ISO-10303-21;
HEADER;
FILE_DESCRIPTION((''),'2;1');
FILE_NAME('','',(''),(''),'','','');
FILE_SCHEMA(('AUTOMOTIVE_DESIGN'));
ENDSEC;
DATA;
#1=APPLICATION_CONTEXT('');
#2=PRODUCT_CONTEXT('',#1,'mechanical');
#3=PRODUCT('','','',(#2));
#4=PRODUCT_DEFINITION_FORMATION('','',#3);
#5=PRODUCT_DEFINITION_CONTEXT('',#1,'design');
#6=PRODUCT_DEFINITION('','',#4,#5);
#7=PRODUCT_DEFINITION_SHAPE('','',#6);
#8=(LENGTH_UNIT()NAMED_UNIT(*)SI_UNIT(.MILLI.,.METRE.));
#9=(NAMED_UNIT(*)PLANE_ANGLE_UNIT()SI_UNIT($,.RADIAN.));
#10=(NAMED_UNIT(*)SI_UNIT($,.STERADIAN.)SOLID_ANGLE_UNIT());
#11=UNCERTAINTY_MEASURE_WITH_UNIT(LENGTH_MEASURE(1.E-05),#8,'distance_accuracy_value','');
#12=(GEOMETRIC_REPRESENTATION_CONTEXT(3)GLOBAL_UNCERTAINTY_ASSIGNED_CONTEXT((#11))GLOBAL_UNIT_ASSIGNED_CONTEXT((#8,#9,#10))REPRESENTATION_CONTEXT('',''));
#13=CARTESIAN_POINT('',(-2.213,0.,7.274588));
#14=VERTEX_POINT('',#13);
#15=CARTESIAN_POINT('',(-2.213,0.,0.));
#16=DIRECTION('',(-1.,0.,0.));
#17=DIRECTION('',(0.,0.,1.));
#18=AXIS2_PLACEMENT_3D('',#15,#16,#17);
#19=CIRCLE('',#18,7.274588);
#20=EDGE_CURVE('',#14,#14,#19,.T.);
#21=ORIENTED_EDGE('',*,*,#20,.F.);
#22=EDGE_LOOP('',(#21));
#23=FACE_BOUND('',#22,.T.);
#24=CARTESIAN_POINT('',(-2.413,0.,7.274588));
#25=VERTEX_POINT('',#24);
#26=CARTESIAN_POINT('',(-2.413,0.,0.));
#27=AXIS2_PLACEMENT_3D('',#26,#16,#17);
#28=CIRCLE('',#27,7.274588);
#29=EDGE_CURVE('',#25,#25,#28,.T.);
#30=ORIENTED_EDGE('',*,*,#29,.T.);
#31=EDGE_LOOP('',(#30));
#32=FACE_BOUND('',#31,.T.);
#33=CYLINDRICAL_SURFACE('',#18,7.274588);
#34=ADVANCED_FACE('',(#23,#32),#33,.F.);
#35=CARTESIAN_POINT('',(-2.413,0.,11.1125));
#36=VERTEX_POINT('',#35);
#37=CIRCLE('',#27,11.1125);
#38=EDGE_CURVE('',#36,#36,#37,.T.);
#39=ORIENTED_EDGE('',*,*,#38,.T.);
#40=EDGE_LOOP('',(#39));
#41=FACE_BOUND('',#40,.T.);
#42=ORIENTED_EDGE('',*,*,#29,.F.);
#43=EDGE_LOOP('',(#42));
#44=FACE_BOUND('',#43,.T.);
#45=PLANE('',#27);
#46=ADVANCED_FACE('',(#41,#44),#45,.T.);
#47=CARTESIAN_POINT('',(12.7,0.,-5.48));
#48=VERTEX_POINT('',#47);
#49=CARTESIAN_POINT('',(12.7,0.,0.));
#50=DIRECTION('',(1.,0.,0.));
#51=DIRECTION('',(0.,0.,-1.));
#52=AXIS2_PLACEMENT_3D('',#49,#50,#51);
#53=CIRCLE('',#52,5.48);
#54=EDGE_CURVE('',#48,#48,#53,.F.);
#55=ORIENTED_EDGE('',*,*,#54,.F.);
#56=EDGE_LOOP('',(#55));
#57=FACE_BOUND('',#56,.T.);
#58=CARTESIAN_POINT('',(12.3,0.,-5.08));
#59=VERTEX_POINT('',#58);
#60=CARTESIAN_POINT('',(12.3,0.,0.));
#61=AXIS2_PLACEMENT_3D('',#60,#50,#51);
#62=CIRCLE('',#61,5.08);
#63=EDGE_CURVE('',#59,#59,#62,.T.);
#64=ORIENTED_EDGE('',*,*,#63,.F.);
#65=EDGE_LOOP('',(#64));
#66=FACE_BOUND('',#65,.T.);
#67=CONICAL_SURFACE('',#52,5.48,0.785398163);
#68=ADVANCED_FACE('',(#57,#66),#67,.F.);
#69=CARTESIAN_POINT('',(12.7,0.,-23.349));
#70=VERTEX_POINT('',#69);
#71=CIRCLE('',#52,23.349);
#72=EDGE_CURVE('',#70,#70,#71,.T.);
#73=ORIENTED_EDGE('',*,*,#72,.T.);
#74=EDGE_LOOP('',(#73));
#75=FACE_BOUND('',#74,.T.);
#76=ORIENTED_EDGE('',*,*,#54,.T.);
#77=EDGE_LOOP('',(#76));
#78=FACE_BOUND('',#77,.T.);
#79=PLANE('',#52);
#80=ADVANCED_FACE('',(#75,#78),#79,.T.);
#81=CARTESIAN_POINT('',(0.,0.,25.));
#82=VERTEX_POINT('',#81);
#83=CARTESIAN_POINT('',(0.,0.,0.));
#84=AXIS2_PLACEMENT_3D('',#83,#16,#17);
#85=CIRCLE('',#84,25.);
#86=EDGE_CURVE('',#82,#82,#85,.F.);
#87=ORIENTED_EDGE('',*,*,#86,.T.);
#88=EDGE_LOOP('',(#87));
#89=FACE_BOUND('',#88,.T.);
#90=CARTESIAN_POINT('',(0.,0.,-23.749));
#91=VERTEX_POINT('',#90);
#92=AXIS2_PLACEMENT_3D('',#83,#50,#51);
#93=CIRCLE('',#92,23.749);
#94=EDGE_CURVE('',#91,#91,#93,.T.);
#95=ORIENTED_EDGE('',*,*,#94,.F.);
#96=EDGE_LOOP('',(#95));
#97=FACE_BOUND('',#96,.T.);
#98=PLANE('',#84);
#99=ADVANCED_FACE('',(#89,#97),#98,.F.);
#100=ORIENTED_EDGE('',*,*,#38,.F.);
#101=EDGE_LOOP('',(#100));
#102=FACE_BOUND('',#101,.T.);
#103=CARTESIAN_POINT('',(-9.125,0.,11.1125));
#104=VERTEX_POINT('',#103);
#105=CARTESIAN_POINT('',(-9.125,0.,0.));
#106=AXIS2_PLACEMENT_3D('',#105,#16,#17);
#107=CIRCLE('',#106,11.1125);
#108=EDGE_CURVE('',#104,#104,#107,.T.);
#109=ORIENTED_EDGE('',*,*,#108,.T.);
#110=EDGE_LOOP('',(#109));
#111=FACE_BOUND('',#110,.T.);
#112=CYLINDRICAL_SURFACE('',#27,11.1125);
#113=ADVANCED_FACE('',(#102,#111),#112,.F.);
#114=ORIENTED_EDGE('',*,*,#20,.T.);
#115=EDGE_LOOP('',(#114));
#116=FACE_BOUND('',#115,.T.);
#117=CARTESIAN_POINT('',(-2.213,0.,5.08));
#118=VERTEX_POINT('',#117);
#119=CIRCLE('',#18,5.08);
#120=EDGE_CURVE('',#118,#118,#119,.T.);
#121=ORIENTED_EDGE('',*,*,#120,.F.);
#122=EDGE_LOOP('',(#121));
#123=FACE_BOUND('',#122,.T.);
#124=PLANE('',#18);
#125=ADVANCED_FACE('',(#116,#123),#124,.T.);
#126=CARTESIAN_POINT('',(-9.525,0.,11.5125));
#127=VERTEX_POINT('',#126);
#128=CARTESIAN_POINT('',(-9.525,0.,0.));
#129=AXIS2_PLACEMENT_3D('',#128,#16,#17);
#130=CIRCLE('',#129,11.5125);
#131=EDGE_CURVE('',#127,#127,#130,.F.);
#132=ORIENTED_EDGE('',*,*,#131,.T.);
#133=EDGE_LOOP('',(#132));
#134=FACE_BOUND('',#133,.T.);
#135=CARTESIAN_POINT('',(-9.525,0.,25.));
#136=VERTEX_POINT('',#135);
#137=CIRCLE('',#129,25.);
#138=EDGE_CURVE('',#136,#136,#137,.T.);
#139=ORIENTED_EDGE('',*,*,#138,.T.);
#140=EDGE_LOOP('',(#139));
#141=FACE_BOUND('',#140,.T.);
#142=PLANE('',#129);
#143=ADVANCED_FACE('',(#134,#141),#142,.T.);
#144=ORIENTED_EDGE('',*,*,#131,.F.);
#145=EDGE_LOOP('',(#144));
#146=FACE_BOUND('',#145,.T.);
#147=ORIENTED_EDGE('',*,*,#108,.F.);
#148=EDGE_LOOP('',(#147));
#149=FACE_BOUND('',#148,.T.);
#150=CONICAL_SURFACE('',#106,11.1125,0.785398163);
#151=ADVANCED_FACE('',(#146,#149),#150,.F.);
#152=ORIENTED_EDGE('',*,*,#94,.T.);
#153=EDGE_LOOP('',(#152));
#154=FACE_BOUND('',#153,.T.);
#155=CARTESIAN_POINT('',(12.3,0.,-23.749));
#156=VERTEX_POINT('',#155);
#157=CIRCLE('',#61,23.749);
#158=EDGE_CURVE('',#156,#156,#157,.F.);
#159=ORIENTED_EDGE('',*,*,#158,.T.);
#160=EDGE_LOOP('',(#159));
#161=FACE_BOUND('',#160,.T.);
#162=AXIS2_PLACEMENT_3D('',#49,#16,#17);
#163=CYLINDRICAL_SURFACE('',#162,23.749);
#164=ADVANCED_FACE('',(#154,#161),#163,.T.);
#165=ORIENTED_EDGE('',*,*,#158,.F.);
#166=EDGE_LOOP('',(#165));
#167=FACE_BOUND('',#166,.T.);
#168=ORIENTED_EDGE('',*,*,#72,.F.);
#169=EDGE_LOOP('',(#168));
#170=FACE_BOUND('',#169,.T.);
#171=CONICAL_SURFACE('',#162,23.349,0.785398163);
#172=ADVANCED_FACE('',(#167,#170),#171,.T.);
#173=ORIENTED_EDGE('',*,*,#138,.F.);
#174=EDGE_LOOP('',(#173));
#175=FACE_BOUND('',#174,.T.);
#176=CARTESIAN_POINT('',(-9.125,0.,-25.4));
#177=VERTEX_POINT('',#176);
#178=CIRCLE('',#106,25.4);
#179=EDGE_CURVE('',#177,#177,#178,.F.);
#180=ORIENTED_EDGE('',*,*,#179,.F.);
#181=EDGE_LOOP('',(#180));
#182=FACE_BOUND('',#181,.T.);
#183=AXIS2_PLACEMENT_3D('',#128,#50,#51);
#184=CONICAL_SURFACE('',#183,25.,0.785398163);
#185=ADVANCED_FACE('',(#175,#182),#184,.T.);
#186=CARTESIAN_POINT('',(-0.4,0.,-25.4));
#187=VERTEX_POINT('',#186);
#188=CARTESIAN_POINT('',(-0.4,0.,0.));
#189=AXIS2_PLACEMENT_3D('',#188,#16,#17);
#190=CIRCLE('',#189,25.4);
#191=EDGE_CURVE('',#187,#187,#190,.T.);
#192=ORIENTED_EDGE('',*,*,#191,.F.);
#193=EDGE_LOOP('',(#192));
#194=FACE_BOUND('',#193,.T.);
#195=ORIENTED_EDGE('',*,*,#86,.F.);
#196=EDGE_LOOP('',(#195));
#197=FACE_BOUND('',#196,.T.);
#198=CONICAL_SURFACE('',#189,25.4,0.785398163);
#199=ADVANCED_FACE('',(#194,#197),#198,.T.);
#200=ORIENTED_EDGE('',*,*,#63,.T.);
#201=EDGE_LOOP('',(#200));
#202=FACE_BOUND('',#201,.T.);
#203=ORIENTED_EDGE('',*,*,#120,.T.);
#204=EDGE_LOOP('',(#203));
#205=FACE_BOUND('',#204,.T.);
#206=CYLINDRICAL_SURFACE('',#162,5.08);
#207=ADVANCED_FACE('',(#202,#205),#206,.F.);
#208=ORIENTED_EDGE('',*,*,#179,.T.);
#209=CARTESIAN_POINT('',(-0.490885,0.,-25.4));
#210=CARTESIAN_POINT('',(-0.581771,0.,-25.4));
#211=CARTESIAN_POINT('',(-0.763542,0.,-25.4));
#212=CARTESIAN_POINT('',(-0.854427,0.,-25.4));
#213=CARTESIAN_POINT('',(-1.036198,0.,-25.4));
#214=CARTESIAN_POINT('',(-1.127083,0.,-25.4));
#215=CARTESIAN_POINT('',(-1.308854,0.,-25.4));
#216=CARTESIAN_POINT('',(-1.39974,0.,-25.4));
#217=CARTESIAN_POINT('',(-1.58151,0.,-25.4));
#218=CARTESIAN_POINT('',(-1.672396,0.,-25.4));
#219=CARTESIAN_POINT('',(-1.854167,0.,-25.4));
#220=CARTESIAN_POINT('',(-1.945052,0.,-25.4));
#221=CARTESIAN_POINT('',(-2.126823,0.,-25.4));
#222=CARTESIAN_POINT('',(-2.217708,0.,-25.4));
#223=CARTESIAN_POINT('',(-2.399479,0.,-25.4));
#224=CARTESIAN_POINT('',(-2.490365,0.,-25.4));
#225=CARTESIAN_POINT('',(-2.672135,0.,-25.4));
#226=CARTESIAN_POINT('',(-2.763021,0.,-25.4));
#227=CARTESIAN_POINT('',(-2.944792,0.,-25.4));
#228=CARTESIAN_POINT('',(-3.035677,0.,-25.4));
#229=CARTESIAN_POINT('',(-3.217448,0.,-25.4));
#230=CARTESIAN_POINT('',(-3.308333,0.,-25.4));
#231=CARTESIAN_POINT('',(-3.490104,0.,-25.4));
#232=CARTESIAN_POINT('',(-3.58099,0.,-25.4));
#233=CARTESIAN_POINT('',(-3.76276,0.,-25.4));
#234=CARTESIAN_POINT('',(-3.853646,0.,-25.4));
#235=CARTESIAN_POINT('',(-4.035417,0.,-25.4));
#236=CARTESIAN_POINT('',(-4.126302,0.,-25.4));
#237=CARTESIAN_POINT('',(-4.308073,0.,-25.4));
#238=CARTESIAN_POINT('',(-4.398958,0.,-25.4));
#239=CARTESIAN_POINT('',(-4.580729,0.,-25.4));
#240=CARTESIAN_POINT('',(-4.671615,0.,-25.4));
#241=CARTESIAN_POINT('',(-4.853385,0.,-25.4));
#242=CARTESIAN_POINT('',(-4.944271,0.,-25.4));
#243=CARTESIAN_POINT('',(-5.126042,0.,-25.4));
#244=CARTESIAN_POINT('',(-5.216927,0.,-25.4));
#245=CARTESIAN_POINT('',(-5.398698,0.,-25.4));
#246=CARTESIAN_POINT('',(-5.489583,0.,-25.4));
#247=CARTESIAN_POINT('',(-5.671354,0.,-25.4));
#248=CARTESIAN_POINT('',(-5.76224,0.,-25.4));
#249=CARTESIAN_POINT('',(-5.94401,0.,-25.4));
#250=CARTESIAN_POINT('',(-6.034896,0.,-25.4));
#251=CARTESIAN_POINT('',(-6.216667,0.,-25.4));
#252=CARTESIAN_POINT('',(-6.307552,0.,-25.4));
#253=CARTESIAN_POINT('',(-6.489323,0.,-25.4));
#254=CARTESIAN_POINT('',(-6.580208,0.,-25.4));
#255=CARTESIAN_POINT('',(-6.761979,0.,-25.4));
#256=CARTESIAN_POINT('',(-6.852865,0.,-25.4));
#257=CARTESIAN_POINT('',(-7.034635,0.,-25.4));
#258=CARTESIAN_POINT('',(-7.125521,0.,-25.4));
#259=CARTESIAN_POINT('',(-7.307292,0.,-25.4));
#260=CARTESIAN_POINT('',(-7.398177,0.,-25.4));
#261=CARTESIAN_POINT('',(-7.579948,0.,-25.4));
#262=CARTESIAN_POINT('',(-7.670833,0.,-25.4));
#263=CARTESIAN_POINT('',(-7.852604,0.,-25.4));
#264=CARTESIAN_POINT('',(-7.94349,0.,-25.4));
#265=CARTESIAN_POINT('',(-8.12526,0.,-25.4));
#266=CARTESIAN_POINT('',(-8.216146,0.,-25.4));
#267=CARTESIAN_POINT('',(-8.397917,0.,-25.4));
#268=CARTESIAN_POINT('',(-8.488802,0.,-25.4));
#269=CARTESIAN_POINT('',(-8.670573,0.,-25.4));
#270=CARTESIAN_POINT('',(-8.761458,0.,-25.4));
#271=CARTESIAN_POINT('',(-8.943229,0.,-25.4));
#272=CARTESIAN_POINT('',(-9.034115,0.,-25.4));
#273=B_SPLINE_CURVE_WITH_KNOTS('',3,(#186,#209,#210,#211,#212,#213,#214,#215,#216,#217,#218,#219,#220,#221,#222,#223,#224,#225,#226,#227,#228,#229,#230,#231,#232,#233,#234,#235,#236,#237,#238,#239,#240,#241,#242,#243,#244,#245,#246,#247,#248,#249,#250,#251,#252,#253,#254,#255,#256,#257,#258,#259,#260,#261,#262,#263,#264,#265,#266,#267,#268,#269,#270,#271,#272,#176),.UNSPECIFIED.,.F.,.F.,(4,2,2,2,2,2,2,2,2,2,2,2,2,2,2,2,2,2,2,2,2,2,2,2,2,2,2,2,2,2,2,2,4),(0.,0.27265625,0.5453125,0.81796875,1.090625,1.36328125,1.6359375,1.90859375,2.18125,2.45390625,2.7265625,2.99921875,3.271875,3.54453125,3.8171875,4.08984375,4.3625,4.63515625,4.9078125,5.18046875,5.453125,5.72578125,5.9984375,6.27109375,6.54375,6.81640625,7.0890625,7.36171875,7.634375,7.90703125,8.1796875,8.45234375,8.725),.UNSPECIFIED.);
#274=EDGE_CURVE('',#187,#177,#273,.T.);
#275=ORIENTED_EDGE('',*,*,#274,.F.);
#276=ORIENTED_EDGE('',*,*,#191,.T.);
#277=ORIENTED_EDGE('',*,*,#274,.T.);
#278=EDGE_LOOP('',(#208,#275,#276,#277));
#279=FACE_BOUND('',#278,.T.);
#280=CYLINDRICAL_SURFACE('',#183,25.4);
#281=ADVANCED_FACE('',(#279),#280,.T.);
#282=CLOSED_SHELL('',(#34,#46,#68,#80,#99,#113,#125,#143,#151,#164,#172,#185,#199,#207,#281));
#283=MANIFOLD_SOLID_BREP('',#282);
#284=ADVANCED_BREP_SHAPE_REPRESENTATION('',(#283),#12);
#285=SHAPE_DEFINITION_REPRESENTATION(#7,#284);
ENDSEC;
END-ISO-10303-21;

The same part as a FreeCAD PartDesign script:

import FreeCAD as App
import Part
import Sketcher

V = App.Vector
Q = App.Units.Quantity


def edges_at(feature, points):
    """Names of the edges that pass closest to the given points."""
    edges = feature.Shape.Edges
    near = lambda p: min(range(len(edges)), key=lambda i: edges[i].distToShape(Part.Vertex(*p))[0])
    return sorted({f"Edge{near(p) + 1}" for p in points})

doc = App.newDocument("Part")
body = doc.addObject("PartDesign::Body", "Body")

# Sketch on YZ plane
sketch1 = body.newObject("Sketcher::SketchObject", "Sketch")
sketch1.AttachmentSupport = (doc.getObject("YZ_Plane"), [""])
sketch1.MapMode = "FlatFace"
sketch1.addGeometry(Part.Circle(V(0, 0, 0), V(0, 0, 1), 24), False)
sketch1.addConstraint([
    Sketcher.Constraint("Coincident", 0, 3, -1, 1),
    Sketcher.Constraint("Diameter", 0, Q("1.87 in")),
])
pad1 = body.newObject("PartDesign::Pad", "Pad")
pad1.Profile = sketch1
pad1.Length = Q("0.5 in")

# Sketch on YZ plane
sketch2 = body.newObject("Sketcher::SketchObject", "Sketch001")
sketch2.AttachmentSupport = (doc.getObject("YZ_Plane"), [""])
sketch2.MapMode = "FlatFace"
sketch2.addGeometry(Part.Circle(V(0, 0, 0), V(0, 0, 1), 25), False)
sketch2.addConstraint([
    Sketcher.Constraint("Coincident", 0, 3, -1, 1),
    Sketcher.Constraint("Diameter", 0, Q("2 in")),
])
pad2 = body.newObject("PartDesign::Pad", "Pad001")
pad2.Profile = sketch2
pad2.Length = Q("0.375 in")
pad2.Reversed = True

# Sketch on YZ plane
sketch3 = body.newObject("Sketcher::SketchObject", "Sketch002")
sketch3.AttachmentSupport = (doc.getObject("YZ_Plane"), [""])
sketch3.MapMode = "FlatFace"
sketch3.AttachmentOffset = App.Placement(V(0, 0, -0.375 * 25.4), App.Rotation())
sketch3.addGeometry(Part.Circle(V(0, 0, 0), V(0, 0, 1), 11), False)
sketch3.addConstraint([
    Sketcher.Constraint("Coincident", 0, 3, -1, 1),
    Sketcher.Constraint("Diameter", 0, Q("0.875 in")),
])
pocket1 = body.newObject("PartDesign::Pocket", "Pocket")
pocket1.Profile = sketch3
pocket1.Length = Q("0.28 in")
pocket1.Reversed = True

# Sketch on YZ plane
sketch4 = body.newObject("Sketcher::SketchObject", "Sketch003")
sketch4.AttachmentSupport = (doc.getObject("YZ_Plane"), [""])
sketch4.MapMode = "FlatFace"
sketch4.AttachmentOffset = App.Placement(V(0, 0, -0.095 * 25.4), App.Rotation())
sketch4.addGeometry(Part.Circle(V(0, 0, 0), V(0, 0, 1), 7), False)
sketch4.addConstraint([
    Sketcher.Constraint("Coincident", 0, 3, -1, 1),
    Sketcher.Constraint("Diameter", 0, 14.549176),
])
pocket2 = body.newObject("PartDesign::Pocket", "Pocket001")
pocket2.Profile = sketch4
pocket2.Length = 0.2
pocket2.Reversed = True

# Sketch on YZ plane
sketch5 = body.newObject("Sketcher::SketchObject", "Sketch004")
sketch5.AttachmentSupport = (doc.getObject("YZ_Plane"), [""])
sketch5.MapMode = "FlatFace"
sketch5.AttachmentOffset = App.Placement(V(0, 0, -2.213), App.Rotation())
sketch5.addGeometry(Part.Circle(V(0, 0, 0), V(0, 0, 1), 5), False)
sketch5.addConstraint([
    Sketcher.Constraint("Coincident", 0, 3, -1, 1),
    Sketcher.Constraint("Diameter", 0, Q("0.4 in")),
])
pocket3 = body.newObject("PartDesign::Pocket", "Pocket002")
pocket3.Profile = sketch5
pocket3.Type = "ThroughAll"
pocket3.Reversed = True
doc.recompute()

chamfer = body.newObject("PartDesign::Chamfer", "Chamfer")
chamfer.Base = (pocket3, edges_at(pocket3, [
    (-9.525, 0, -11.113),
    (12.7, 0, -5.08),
    (12.7, 0, 23.749),
    (0, 0, 25.4),
    (-9.525, 0, 25.4),
]))
chamfer.Size = 0.4

doc.recompute()
